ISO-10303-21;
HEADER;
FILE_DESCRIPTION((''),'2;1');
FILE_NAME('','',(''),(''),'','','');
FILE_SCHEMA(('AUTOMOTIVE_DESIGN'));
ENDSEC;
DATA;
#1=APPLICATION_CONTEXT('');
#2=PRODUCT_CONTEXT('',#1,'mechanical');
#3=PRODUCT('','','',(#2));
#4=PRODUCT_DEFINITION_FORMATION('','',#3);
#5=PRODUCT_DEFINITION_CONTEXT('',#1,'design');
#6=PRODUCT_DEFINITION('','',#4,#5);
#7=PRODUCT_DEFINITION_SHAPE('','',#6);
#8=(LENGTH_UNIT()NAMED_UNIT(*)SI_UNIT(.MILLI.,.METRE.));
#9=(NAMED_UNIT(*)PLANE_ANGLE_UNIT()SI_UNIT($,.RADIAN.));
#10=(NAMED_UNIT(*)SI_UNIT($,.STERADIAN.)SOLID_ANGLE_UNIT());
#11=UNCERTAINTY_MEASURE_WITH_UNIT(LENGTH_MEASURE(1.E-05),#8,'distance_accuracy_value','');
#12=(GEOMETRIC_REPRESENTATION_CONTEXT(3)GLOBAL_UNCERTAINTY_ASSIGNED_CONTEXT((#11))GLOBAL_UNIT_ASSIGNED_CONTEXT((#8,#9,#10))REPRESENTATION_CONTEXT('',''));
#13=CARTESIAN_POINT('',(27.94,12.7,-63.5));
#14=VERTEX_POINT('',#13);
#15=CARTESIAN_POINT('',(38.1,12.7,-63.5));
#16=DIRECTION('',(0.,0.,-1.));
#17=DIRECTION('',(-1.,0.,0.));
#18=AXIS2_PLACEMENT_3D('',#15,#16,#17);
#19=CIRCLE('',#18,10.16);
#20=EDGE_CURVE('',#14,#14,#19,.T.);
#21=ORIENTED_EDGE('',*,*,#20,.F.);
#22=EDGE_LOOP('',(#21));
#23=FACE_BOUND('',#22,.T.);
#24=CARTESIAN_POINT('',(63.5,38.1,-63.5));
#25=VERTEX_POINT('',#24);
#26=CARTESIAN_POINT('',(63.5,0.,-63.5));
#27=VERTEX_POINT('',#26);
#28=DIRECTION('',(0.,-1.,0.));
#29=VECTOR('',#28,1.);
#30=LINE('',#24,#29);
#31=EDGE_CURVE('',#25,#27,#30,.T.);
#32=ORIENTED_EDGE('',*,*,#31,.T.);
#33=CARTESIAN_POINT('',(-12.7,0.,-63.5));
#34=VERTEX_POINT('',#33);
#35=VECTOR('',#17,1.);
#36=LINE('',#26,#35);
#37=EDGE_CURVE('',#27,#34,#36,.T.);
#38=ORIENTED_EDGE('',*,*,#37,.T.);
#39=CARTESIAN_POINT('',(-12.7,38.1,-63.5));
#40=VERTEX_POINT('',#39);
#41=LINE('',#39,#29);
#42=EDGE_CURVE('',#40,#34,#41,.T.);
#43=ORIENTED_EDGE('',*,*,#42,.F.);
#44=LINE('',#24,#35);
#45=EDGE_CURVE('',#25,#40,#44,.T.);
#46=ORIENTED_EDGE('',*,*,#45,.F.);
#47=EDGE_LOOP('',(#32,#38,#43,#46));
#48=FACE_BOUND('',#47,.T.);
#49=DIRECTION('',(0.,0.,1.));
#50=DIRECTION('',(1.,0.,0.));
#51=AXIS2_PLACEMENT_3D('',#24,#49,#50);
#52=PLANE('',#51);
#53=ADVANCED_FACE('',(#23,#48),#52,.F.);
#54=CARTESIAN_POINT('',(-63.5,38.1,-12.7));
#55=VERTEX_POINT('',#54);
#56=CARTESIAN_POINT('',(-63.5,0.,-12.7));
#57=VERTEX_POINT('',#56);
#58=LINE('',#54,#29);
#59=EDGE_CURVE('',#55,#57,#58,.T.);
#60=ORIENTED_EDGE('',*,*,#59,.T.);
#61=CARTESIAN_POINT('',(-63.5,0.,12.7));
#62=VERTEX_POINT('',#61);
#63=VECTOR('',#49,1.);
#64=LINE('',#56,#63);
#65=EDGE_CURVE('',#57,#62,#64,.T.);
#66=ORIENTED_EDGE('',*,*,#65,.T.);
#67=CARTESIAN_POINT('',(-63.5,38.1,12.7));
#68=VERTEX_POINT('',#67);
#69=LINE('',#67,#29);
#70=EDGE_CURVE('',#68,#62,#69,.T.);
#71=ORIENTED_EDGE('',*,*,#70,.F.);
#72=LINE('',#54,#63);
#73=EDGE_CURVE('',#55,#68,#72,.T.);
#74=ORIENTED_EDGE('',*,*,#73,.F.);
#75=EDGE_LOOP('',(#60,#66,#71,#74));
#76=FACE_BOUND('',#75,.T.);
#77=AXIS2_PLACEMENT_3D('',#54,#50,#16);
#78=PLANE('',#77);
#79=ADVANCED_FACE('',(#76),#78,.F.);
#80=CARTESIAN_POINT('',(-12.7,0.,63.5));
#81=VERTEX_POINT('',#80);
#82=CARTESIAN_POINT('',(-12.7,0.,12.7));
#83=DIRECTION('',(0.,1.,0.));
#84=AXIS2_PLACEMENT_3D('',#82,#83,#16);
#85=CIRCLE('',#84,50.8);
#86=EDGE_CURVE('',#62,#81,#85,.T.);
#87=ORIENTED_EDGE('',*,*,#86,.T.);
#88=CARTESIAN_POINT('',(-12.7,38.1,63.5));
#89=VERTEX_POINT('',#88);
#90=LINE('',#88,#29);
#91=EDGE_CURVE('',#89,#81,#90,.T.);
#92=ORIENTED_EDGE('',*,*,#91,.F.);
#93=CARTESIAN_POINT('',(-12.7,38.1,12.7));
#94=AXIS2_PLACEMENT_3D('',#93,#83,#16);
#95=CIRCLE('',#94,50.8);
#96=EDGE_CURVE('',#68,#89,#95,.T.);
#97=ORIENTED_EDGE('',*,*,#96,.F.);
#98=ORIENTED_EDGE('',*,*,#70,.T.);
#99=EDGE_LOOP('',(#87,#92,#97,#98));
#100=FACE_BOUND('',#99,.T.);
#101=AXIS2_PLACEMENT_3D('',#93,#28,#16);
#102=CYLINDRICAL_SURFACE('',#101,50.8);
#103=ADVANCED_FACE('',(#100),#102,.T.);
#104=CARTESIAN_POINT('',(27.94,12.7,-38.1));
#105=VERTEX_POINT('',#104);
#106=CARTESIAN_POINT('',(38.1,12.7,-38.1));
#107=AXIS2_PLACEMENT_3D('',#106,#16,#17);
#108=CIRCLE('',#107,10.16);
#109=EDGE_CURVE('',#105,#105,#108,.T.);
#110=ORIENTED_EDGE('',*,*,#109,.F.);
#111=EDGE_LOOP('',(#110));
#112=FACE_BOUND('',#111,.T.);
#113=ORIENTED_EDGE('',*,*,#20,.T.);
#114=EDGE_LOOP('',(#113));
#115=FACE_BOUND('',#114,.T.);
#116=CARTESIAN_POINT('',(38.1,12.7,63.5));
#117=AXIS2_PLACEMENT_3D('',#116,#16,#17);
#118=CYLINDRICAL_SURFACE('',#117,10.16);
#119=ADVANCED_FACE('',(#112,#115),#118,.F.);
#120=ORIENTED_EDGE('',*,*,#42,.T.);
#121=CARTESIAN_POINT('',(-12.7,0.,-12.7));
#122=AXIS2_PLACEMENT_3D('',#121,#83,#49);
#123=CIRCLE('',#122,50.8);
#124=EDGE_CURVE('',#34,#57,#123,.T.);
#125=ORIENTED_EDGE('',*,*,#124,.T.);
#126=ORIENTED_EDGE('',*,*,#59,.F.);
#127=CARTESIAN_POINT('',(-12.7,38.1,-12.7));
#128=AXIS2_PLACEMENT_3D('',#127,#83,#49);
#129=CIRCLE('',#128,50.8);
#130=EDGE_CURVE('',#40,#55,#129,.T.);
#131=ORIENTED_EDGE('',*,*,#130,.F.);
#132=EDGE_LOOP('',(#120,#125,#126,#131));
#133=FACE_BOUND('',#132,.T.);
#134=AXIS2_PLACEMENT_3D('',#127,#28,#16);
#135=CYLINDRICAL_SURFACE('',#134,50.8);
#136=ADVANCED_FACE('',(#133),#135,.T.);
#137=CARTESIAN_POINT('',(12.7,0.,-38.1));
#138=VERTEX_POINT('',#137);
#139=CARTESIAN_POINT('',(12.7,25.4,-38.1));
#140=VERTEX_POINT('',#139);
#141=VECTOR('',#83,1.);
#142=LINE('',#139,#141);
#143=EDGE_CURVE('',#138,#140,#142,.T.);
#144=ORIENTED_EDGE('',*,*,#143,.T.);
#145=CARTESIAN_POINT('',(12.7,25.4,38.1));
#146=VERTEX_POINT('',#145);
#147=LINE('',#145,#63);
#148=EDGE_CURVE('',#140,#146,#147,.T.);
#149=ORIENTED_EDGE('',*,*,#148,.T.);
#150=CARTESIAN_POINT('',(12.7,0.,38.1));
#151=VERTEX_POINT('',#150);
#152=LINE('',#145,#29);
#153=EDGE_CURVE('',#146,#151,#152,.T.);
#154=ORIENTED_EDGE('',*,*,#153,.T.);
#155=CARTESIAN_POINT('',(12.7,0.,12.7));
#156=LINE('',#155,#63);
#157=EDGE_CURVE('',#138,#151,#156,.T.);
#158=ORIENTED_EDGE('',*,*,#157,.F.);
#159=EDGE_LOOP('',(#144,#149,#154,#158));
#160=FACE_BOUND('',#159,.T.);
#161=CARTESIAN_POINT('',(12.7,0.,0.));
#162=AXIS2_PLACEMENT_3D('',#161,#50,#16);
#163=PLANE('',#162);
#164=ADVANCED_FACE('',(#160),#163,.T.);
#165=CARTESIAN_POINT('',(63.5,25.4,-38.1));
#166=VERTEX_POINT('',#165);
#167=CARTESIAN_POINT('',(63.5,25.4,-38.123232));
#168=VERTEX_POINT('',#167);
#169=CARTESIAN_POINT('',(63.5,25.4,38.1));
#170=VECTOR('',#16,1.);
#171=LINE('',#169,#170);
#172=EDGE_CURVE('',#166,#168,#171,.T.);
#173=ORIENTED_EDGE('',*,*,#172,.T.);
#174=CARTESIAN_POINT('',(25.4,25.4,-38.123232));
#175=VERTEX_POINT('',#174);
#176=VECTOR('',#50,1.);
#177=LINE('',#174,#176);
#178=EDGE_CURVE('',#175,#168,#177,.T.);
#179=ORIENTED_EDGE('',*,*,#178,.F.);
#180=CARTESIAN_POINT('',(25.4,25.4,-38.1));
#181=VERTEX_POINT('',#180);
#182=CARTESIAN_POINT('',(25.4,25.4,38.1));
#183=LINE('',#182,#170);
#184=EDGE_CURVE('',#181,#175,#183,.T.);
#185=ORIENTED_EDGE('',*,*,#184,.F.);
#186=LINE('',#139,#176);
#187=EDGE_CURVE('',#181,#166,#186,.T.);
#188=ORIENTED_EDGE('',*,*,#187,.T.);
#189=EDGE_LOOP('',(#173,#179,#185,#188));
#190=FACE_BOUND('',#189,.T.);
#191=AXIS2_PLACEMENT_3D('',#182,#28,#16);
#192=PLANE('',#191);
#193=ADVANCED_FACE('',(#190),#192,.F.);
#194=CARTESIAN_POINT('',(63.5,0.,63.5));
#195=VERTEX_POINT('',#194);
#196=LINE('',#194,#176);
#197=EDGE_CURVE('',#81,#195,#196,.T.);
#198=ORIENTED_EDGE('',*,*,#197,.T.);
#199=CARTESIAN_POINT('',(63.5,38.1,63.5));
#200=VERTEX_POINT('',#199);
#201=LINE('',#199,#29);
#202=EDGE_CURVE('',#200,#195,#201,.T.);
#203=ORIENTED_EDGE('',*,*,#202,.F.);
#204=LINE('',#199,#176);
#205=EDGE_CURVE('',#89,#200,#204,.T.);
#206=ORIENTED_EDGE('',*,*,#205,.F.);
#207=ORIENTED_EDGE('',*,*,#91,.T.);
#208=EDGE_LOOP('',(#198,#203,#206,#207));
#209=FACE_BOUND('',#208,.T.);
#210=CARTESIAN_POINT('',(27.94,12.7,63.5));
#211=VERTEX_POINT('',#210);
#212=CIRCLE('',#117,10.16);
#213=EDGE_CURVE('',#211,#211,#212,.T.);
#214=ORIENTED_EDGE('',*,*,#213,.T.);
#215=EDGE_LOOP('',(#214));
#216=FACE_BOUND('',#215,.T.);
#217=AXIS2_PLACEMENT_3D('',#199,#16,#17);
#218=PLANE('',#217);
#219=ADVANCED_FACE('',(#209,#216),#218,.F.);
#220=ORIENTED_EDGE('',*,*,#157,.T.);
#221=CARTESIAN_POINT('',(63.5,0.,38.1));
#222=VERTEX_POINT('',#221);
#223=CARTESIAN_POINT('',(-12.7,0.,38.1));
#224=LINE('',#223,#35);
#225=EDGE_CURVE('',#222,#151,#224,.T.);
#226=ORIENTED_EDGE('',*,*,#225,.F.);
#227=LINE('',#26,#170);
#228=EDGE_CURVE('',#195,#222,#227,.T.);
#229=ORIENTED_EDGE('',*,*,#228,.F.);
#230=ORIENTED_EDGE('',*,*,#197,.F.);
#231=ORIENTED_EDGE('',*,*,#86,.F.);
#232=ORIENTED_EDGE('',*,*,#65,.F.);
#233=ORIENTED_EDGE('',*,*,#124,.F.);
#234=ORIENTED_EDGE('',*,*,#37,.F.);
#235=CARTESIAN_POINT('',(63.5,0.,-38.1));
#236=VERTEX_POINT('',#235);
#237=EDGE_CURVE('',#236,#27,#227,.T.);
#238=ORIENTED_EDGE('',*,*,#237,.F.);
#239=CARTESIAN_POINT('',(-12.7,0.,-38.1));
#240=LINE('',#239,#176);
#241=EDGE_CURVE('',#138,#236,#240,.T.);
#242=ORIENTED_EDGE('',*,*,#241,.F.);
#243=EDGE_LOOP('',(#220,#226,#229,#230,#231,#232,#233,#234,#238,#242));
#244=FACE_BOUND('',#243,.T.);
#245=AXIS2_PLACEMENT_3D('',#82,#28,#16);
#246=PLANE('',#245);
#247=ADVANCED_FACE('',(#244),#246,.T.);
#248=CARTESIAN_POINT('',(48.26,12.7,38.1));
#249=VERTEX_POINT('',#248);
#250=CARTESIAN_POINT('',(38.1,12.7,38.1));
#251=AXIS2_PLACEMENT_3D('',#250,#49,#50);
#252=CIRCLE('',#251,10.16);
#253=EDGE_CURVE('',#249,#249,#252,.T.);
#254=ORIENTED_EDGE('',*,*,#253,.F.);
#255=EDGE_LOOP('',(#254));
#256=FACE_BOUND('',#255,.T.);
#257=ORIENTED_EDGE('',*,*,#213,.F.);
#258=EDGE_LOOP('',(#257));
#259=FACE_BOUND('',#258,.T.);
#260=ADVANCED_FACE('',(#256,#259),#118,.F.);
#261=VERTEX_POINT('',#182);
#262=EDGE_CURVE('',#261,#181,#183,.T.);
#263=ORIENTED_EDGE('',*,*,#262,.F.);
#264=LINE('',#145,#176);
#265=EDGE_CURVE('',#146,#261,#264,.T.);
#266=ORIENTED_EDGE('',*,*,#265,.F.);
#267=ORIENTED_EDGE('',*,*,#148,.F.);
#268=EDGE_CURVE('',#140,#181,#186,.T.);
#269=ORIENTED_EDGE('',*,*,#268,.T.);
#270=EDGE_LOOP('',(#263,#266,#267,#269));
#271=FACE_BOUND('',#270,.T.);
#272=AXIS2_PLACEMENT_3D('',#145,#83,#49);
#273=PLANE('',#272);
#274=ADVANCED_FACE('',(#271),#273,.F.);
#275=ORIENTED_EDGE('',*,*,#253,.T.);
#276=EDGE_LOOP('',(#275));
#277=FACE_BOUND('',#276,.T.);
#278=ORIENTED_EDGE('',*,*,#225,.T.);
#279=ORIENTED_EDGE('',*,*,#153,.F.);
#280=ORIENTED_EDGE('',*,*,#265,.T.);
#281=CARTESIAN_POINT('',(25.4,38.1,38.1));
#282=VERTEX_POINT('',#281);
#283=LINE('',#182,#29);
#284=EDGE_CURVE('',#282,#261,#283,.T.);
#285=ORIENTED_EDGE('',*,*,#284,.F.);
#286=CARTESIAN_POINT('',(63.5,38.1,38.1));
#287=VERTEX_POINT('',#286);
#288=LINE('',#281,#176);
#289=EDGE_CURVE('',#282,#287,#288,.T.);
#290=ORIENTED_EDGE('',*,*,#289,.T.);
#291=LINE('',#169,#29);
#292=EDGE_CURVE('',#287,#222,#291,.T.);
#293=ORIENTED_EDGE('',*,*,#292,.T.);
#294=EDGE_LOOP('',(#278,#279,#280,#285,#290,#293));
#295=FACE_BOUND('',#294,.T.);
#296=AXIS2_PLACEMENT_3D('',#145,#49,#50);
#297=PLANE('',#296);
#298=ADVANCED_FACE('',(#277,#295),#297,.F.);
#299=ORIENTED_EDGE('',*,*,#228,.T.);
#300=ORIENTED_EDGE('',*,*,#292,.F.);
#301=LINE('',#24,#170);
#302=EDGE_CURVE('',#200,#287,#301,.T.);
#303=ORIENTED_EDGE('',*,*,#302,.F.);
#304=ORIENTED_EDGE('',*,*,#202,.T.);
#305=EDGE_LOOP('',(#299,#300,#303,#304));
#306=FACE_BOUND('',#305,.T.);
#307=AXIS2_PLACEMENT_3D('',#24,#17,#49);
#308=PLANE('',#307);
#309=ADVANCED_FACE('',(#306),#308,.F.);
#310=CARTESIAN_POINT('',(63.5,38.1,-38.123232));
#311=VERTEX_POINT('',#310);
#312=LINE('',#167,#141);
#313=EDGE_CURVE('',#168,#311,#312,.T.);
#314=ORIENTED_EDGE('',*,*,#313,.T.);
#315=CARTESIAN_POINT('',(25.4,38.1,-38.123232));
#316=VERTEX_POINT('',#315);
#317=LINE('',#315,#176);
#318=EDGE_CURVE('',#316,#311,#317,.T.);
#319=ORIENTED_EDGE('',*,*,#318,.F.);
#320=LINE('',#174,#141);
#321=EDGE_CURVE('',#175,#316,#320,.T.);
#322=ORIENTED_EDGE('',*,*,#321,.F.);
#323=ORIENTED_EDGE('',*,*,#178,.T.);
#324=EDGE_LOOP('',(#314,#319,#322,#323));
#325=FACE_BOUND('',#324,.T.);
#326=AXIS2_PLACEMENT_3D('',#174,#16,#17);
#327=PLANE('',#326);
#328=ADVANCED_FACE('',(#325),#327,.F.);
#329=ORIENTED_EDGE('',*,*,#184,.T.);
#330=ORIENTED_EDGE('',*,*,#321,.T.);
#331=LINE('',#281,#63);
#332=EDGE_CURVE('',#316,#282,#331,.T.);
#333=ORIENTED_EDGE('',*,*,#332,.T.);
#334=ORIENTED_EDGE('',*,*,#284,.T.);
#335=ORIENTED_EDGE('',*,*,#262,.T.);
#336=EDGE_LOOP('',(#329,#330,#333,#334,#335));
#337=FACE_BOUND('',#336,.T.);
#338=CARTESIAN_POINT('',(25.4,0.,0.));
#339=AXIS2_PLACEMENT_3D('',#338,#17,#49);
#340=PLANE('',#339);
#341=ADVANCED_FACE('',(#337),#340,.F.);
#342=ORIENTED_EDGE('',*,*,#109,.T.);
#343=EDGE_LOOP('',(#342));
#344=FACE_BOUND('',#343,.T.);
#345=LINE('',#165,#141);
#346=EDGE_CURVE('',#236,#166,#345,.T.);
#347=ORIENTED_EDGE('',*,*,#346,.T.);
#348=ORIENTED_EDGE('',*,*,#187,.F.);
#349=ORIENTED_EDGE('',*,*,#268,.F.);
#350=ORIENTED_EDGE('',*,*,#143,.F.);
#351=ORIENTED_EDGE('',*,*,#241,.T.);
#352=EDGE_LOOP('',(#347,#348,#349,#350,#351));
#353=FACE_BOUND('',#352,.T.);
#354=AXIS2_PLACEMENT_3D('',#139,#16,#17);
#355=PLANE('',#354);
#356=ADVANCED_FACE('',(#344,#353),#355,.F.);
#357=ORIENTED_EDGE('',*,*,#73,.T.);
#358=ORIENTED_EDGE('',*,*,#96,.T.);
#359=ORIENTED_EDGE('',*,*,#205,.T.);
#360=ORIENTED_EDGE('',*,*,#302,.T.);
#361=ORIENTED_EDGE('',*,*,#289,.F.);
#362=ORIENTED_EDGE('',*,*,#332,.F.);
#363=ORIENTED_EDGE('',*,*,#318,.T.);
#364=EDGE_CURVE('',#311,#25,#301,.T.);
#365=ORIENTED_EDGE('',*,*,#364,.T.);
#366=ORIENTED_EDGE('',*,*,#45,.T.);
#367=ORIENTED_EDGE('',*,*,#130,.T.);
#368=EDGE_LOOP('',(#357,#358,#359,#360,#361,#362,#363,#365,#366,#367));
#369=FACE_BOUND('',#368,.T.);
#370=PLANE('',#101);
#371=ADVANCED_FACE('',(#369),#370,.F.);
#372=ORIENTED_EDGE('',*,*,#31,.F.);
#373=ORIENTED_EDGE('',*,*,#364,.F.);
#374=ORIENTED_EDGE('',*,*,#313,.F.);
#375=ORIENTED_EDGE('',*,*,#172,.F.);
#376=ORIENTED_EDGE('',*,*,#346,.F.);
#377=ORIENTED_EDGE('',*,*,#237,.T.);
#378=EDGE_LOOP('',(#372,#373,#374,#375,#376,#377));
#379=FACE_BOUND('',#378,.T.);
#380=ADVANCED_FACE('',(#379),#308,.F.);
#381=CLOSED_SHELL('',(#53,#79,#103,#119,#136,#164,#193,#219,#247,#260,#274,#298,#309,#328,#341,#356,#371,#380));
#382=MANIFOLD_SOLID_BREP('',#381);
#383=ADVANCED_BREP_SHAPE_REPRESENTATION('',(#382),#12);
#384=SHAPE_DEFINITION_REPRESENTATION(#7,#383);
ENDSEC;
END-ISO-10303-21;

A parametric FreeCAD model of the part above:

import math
import FreeCAD as App
import Part
import Sketcher
from FreeCAD import Vector
Q = App.Units.Quantity


def add_polygon(sketch, points):
    """Adds a closed chain of lines whose ends are joined by coincident constraints."""
    first, n = sketch.GeometryCount, len(points)
    for a, b in zip(points, points[1:] + points[:1]):
        sketch.addGeometry(Part.LineSegment(App.Vector(*a, 0), App.Vector(*b, 0)), False)
    for i in range(n):
        sketch.addConstraint(Sketcher.Constraint("Coincident", first + i, 2, first + (i + 1) % n, 1))

doc = App.newDocument("Part")
body = doc.addObject("PartDesign::Body", "Body")

# Sketch on XZ plane
sketch1 = body.newObject("Sketcher::SketchObject", "Sketch")
sketch1.AttachmentSupport = (doc.getObject("XZ_Plane"), [""])
sketch1.MapMode = "FlatFace"
sketch1.addGeometry([
    Part.LineSegment(Vector(63.5, -63.5, 0), Vector(-12.7, -63.5, 0)),  # 0
    Part.ArcOfCircle(Part.Circle(Vector(-12.7, -12.7, 0), Vector(0, 0, 1), 50.8), math.radians(-180), math.radians(-90)),  # 1
    Part.LineSegment(Vector(-63.5, -12.7, 0), Vector(-63.5, 12.7, 0)),  # 2
    Part.ArcOfCircle(Part.Circle(Vector(-12.7, 12.7, 0), Vector(0, 0, 1), 50.8), math.radians(90), math.radians(180)),  # 3
    Part.LineSegment(Vector(-12.7, 63.5, 0), Vector(63.5, 63.5, 0)),  # 4
    Part.LineSegment(Vector(63.5, 63.5, 0), Vector(63.5, -63.5, 0)),  # 5
], False)
sketch1.addConstraint([
    Sketcher.Constraint("Tangent", 0, 2, 1, 2),
    Sketcher.Constraint("Tangent", 1, 1, 2, 1),
    Sketcher.Constraint("Tangent", 2, 2, 3, 2),
    Sketcher.Constraint("Tangent", 3, 1, 4, 1),
    Sketcher.Constraint("Coincident", 4, 2, 5, 1),
    Sketcher.Constraint("Coincident", 5, 2, 0, 1),
    Sketcher.Constraint("Horizontal", 0),
    Sketcher.Constraint("Vertical", 2),
    Sketcher.Constraint("Horizontal", 4),
    Sketcher.Constraint("Vertical", 5),
    Sketcher.Constraint("Equal", 1, 3),
    Sketcher.Constraint("Radius", 1, Q("2 in")),
    Sketcher.Constraint("DistanceX", 0, 2, 0, 1, Q("3 in")),
    Sketcher.Constraint("DistanceY", 2, 1, 2, 2, Q("1 in")),
    Sketcher.Constraint("DistanceX", 1, 3, -1, 1, Q("0.5 in")),
    Sketcher.Constraint("DistanceY", 1, 3, -1, 1, Q("0.5 in")),
])
pad1 = body.newObject("PartDesign::Pad", "Pad")
pad1.Profile = sketch1
pad1.Length = Q("1.5 in")
pad1.Reversed = True

# Sketch on YZ plane
sketch2 = body.newObject("Sketcher::SketchObject", "Sketch001")
sketch2.AttachmentSupport = (doc.getObject("YZ_Plane"), [""])
sketch2.MapMode = "FlatFace"
sketch2.AttachmentOffset = App.Placement(Vector(0, 0, 2.5 * 25.4), App.Rotation())
add_polygon(sketch2, [(25.4, 38.1), (-25.4, 38.1), (-25.4, -38.1), (25.4, -38.1)])  # lines 0-3
sketch2.addConstraint([
    Sketcher.Constraint("Horizontal", 0),
    Sketcher.Constraint("Vertical", 1),
    Sketcher.Constraint("Horizontal", 2),
    Sketcher.Constraint("Vertical", 3),
    Sketcher.Constraint("Symmetric", 0, 2, 2, 2, -1, 1),
    Sketcher.Constraint("DistanceX", 0, 2, 0, 1, Q("2 in")),
    Sketcher.Constraint("DistanceY", 1, 2, 1, 1, Q("3 in")),
])
pocket1 = body.newObject("PartDesign::Pocket", "Pocket")
pocket1.Profile = sketch2
pocket1.Length = Q("2 in")

# Sketch on XY plane
sketch3 = body.newObject("Sketcher::SketchObject", "Sketch002")
sketch3.AttachmentSupport = (doc.getObject("XY_Plane"), [""])
sketch3.MapMode = "FlatFace"
sketch3.AttachmentOffset = App.Placement(Vector(0, 0, 1.5 * 25.4), App.Rotation())
sketch3.addGeometry(Part.Circle(Vector(38.1, 12.7, 0), Vector(0, 0, 1), 10.16), False)
sketch3.addConstraint([
    Sketcher.Constraint("Diameter", 0, Q("0.8 in")),
    Sketcher.Constraint("DistanceX", -1, 1, 0, 3, Q("1.5 in")),
    Sketcher.Constraint("DistanceY", -1, 1, 0, 3, Q("0.5 in")),
])
pocket2 = body.newObject("PartDesign::Pocket", "Pocket001")
pocket2.Profile = sketch3
pocket2.Type = "ThroughAll"
pocket2.Midplane = True

# Sketch on YZ plane
sketch4 = body.newObject("Sketcher::SketchObject", "Sketch003")
sketch4.AttachmentSupport = (doc.getObject("YZ_Plane"), [""])
sketch4.MapMode = "FlatFace"
sketch4.AttachmentOffset = App.Placement(Vector(0, 0, 2.5 * 25.4), App.Rotation())
add_polygon(sketch4, [(38.1, 38.1), (25.4, 38.1), (25.4, -38.123232), (38.1, -38.123232)])  # lines 0-3
sketch4.addConstraint([
    Sketcher.Constraint("Horizontal", 0),
    Sketcher.Constraint("Vertical", 1),
    Sketcher.Constraint("Horizontal", 2),
    Sketcher.Constraint("Vertical", 3),
    Sketcher.Constraint("DistanceX", 0, 2, 0, 1, Q("0.5 in")),
    Sketcher.Constraint("DistanceX", -1, 1, 0, 2, Q("1 in")),
    Sketcher.Constraint("DistanceY", -1, 1, 0, 2, Q("1.5 in")),
    Sketcher.Constraint("DistanceY", 1, 2, 1, 1, Q("76.223232 mm")),
])
pocket3 = body.newObject("PartDesign::Pocket", "Pocket002")
pocket3.Profile = sketch4
pocket3.Length = Q("1.5 in")

doc.recompute()
